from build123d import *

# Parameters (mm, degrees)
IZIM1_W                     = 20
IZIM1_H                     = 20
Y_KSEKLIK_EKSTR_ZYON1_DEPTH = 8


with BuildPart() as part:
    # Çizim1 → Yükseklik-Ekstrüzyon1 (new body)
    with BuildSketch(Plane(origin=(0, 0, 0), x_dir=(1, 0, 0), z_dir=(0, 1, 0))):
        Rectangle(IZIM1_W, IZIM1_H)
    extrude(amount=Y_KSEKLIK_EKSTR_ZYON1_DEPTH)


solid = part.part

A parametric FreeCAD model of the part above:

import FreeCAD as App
import Part
import Sketcher


def add_polygon(sketch, points):
    """Adds a closed chain of lines whose ends are joined by coincident constraints."""
    first, n = sketch.GeometryCount, len(points)
    for a, b in zip(points, points[1:] + points[:1]):
        sketch.addGeometry(Part.LineSegment(App.Vector(*a, 0), App.Vector(*b, 0)), False)
    for i in range(n):
        sketch.addConstraint(Sketcher.Constraint("Coincident", first + i, 2, first + (i + 1) % n, 1))

doc = App.newDocument("Part")
body = doc.addObject("PartDesign::Body", "Body")

# Sketch on XZ plane
sketch1 = body.newObject("Sketcher::SketchObject", "Sketch")
sketch1.AttachmentSupport = (doc.getObject("XZ_Plane"), [""])
sketch1.MapMode = "FlatFace"
add_polygon(sketch1, [(-10, -10), (-10, 10), (10, 10), (10, -10)])  # lines 0-3
sketch1.addConstraint([
    Sketcher.Constraint("Vertical", 0),
    Sketcher.Constraint("Horizontal", 1),
    Sketcher.Constraint("Vertical", 2),
    Sketcher.Constraint("Horizontal", 3),
    Sketcher.Constraint("Symmetric", 0, 2, 2, 2, -1, 1),
    Sketcher.Constraint("Equal", 3, 0),
    Sketcher.Constraint("DistanceX", 1, 1, 1, 2, 20.0),
])
pad1 = body.newObject("PartDesign::Pad", "Pad")
pad1.Profile = sketch1
pad1.Length = 8
pad1.Reversed = True

doc.recompute()
